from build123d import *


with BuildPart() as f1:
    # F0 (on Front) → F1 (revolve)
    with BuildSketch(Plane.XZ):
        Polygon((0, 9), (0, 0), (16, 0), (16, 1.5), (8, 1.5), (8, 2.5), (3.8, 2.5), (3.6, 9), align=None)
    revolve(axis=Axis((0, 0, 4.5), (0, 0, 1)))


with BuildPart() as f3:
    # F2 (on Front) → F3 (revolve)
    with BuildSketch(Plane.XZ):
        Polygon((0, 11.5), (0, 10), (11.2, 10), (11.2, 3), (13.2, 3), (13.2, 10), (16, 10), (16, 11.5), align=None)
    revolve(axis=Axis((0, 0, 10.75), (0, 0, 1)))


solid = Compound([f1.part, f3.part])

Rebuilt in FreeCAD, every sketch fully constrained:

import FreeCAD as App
import Part
import Sketcher


def add_polygon(sketch, points):
    """Adds a closed chain of lines whose ends are joined by coincident constraints."""
    first, n = sketch.GeometryCount, len(points)
    for a, b in zip(points, points[1:] + points[:1]):
        sketch.addGeometry(Part.LineSegment(App.Vector(*a, 0), App.Vector(*b, 0)), False)
    for i in range(n):
        sketch.addConstraint(Sketcher.Constraint("Coincident", first + i, 2, first + (i + 1) % n, 1))

doc = App.newDocument("Part")
body = doc.addObject("PartDesign::Body", "Body")

# Sketch on XZ plane
sketch1 = body.newObject("Sketcher::SketchObject", "Sketch")
sketch1.AttachmentSupport = (doc.getObject("XZ_Plane"), [""])
sketch1.MapMode = "FlatFace"
add_polygon(sketch1, [(0, 9), (0, 0), (16, 0), (16, 1.5), (8, 1.5), (8, 2.5), (3.8, 2.5), (3.6, 9)])  # lines 0-7
sketch1.addConstraint([
    Sketcher.Constraint("Vertical", 0),
    Sketcher.Constraint("Horizontal", 1),
    Sketcher.Constraint("Vertical", 2),
    Sketcher.Constraint("Horizontal", 3),
    Sketcher.Constraint("Vertical", 4),
    Sketcher.Constraint("Horizontal", 5),
    Sketcher.Constraint("Horizontal", 7),
    Sketcher.Constraint("Coincident", 0, 2, -1, 1),
    Sketcher.Constraint("DistanceX", 1, 1, 1, 2, 16.0),
    Sketcher.Constraint("DistanceX", 3, 2, 3, 1, 8.0),
    Sketcher.Constraint("DistanceY", 0, 2, 0, 1, 9.0),
    Sketcher.Constraint("DistanceY", 4, 1, 4, 2, 1.0),
    Sketcher.Constraint("DistanceX", 5, 2, 5, 1, 4.2),
    Sketcher.Constraint("DistanceX", 7, 2, 7, 1, 3.6),
    Sketcher.Constraint("DistanceY", 2, 1, 2, 2, 1.5),
])
revolution = body.newObject("PartDesign::Revolution", "Revolution")
revolution.Profile = sketch1
revolution.ReferenceAxis = (sketch1, ["V_Axis"])
revolution.Angle = 360
body2 = doc.addObject("PartDesign::Body", "Body001")

# Sketch on XZ plane
sketch2 = body2.newObject("Sketcher::SketchObject", "Sketch001")
sketch2.AttachmentSupport = (doc.getObject("XZ_Plane001"), [""])
sketch2.MapMode = "FlatFace"
add_polygon(sketch2, [(0, 11.5), (0, 10), (11.2, 10), (11.2, 3), (13.2, 3), (13.2, 10), (16, 10), (16, 11.5)])  # lines 0-7
sketch2.addConstraint([
    Sketcher.Constraint("Vertical", 0),
    Sketcher.Constraint("Horizontal", 1),
    Sketcher.Constraint("Vertical", 2),
    Sketcher.Constraint("Horizontal", 3),
    Sketcher.Constraint("Vertical", 4),
    Sketcher.Constraint("Horizontal", 5),
    Sketcher.Constraint("Vertical", 6),
    Sketcher.Constraint("Horizontal", 7),
    Sketcher.Constraint("PointOnObject", 0, 2, -2),
    Sketcher.Constraint("Horizontal", 1, 2, 4, 2),
    Sketcher.Constraint("DistanceX", 3, 1, 3, 2, 2.0),
    Sketcher.Constraint("DistanceX", 7, 2, 7, 1, 16.0),
    Sketcher.Constraint("DistanceY", 2, 2, 2, 1, 7.0),
    Sketcher.Constraint("DistanceX", 1, 1, 1, 2, 11.2),
    Sketcher.Constraint("DistanceY", 0, 2, 0, 1, 1.5),
    Sketcher.Constraint("DistanceY", -1, 1, 0, 2, 10.0),
])
revolution2 = body2.newObject("PartDesign::Revolution", "Revolution001")
revolution2.Profile = sketch2
revolution2.ReferenceAxis = (sketch2, ["V_Axis"])
revolution2.Angle = 360

doc.recompute()
